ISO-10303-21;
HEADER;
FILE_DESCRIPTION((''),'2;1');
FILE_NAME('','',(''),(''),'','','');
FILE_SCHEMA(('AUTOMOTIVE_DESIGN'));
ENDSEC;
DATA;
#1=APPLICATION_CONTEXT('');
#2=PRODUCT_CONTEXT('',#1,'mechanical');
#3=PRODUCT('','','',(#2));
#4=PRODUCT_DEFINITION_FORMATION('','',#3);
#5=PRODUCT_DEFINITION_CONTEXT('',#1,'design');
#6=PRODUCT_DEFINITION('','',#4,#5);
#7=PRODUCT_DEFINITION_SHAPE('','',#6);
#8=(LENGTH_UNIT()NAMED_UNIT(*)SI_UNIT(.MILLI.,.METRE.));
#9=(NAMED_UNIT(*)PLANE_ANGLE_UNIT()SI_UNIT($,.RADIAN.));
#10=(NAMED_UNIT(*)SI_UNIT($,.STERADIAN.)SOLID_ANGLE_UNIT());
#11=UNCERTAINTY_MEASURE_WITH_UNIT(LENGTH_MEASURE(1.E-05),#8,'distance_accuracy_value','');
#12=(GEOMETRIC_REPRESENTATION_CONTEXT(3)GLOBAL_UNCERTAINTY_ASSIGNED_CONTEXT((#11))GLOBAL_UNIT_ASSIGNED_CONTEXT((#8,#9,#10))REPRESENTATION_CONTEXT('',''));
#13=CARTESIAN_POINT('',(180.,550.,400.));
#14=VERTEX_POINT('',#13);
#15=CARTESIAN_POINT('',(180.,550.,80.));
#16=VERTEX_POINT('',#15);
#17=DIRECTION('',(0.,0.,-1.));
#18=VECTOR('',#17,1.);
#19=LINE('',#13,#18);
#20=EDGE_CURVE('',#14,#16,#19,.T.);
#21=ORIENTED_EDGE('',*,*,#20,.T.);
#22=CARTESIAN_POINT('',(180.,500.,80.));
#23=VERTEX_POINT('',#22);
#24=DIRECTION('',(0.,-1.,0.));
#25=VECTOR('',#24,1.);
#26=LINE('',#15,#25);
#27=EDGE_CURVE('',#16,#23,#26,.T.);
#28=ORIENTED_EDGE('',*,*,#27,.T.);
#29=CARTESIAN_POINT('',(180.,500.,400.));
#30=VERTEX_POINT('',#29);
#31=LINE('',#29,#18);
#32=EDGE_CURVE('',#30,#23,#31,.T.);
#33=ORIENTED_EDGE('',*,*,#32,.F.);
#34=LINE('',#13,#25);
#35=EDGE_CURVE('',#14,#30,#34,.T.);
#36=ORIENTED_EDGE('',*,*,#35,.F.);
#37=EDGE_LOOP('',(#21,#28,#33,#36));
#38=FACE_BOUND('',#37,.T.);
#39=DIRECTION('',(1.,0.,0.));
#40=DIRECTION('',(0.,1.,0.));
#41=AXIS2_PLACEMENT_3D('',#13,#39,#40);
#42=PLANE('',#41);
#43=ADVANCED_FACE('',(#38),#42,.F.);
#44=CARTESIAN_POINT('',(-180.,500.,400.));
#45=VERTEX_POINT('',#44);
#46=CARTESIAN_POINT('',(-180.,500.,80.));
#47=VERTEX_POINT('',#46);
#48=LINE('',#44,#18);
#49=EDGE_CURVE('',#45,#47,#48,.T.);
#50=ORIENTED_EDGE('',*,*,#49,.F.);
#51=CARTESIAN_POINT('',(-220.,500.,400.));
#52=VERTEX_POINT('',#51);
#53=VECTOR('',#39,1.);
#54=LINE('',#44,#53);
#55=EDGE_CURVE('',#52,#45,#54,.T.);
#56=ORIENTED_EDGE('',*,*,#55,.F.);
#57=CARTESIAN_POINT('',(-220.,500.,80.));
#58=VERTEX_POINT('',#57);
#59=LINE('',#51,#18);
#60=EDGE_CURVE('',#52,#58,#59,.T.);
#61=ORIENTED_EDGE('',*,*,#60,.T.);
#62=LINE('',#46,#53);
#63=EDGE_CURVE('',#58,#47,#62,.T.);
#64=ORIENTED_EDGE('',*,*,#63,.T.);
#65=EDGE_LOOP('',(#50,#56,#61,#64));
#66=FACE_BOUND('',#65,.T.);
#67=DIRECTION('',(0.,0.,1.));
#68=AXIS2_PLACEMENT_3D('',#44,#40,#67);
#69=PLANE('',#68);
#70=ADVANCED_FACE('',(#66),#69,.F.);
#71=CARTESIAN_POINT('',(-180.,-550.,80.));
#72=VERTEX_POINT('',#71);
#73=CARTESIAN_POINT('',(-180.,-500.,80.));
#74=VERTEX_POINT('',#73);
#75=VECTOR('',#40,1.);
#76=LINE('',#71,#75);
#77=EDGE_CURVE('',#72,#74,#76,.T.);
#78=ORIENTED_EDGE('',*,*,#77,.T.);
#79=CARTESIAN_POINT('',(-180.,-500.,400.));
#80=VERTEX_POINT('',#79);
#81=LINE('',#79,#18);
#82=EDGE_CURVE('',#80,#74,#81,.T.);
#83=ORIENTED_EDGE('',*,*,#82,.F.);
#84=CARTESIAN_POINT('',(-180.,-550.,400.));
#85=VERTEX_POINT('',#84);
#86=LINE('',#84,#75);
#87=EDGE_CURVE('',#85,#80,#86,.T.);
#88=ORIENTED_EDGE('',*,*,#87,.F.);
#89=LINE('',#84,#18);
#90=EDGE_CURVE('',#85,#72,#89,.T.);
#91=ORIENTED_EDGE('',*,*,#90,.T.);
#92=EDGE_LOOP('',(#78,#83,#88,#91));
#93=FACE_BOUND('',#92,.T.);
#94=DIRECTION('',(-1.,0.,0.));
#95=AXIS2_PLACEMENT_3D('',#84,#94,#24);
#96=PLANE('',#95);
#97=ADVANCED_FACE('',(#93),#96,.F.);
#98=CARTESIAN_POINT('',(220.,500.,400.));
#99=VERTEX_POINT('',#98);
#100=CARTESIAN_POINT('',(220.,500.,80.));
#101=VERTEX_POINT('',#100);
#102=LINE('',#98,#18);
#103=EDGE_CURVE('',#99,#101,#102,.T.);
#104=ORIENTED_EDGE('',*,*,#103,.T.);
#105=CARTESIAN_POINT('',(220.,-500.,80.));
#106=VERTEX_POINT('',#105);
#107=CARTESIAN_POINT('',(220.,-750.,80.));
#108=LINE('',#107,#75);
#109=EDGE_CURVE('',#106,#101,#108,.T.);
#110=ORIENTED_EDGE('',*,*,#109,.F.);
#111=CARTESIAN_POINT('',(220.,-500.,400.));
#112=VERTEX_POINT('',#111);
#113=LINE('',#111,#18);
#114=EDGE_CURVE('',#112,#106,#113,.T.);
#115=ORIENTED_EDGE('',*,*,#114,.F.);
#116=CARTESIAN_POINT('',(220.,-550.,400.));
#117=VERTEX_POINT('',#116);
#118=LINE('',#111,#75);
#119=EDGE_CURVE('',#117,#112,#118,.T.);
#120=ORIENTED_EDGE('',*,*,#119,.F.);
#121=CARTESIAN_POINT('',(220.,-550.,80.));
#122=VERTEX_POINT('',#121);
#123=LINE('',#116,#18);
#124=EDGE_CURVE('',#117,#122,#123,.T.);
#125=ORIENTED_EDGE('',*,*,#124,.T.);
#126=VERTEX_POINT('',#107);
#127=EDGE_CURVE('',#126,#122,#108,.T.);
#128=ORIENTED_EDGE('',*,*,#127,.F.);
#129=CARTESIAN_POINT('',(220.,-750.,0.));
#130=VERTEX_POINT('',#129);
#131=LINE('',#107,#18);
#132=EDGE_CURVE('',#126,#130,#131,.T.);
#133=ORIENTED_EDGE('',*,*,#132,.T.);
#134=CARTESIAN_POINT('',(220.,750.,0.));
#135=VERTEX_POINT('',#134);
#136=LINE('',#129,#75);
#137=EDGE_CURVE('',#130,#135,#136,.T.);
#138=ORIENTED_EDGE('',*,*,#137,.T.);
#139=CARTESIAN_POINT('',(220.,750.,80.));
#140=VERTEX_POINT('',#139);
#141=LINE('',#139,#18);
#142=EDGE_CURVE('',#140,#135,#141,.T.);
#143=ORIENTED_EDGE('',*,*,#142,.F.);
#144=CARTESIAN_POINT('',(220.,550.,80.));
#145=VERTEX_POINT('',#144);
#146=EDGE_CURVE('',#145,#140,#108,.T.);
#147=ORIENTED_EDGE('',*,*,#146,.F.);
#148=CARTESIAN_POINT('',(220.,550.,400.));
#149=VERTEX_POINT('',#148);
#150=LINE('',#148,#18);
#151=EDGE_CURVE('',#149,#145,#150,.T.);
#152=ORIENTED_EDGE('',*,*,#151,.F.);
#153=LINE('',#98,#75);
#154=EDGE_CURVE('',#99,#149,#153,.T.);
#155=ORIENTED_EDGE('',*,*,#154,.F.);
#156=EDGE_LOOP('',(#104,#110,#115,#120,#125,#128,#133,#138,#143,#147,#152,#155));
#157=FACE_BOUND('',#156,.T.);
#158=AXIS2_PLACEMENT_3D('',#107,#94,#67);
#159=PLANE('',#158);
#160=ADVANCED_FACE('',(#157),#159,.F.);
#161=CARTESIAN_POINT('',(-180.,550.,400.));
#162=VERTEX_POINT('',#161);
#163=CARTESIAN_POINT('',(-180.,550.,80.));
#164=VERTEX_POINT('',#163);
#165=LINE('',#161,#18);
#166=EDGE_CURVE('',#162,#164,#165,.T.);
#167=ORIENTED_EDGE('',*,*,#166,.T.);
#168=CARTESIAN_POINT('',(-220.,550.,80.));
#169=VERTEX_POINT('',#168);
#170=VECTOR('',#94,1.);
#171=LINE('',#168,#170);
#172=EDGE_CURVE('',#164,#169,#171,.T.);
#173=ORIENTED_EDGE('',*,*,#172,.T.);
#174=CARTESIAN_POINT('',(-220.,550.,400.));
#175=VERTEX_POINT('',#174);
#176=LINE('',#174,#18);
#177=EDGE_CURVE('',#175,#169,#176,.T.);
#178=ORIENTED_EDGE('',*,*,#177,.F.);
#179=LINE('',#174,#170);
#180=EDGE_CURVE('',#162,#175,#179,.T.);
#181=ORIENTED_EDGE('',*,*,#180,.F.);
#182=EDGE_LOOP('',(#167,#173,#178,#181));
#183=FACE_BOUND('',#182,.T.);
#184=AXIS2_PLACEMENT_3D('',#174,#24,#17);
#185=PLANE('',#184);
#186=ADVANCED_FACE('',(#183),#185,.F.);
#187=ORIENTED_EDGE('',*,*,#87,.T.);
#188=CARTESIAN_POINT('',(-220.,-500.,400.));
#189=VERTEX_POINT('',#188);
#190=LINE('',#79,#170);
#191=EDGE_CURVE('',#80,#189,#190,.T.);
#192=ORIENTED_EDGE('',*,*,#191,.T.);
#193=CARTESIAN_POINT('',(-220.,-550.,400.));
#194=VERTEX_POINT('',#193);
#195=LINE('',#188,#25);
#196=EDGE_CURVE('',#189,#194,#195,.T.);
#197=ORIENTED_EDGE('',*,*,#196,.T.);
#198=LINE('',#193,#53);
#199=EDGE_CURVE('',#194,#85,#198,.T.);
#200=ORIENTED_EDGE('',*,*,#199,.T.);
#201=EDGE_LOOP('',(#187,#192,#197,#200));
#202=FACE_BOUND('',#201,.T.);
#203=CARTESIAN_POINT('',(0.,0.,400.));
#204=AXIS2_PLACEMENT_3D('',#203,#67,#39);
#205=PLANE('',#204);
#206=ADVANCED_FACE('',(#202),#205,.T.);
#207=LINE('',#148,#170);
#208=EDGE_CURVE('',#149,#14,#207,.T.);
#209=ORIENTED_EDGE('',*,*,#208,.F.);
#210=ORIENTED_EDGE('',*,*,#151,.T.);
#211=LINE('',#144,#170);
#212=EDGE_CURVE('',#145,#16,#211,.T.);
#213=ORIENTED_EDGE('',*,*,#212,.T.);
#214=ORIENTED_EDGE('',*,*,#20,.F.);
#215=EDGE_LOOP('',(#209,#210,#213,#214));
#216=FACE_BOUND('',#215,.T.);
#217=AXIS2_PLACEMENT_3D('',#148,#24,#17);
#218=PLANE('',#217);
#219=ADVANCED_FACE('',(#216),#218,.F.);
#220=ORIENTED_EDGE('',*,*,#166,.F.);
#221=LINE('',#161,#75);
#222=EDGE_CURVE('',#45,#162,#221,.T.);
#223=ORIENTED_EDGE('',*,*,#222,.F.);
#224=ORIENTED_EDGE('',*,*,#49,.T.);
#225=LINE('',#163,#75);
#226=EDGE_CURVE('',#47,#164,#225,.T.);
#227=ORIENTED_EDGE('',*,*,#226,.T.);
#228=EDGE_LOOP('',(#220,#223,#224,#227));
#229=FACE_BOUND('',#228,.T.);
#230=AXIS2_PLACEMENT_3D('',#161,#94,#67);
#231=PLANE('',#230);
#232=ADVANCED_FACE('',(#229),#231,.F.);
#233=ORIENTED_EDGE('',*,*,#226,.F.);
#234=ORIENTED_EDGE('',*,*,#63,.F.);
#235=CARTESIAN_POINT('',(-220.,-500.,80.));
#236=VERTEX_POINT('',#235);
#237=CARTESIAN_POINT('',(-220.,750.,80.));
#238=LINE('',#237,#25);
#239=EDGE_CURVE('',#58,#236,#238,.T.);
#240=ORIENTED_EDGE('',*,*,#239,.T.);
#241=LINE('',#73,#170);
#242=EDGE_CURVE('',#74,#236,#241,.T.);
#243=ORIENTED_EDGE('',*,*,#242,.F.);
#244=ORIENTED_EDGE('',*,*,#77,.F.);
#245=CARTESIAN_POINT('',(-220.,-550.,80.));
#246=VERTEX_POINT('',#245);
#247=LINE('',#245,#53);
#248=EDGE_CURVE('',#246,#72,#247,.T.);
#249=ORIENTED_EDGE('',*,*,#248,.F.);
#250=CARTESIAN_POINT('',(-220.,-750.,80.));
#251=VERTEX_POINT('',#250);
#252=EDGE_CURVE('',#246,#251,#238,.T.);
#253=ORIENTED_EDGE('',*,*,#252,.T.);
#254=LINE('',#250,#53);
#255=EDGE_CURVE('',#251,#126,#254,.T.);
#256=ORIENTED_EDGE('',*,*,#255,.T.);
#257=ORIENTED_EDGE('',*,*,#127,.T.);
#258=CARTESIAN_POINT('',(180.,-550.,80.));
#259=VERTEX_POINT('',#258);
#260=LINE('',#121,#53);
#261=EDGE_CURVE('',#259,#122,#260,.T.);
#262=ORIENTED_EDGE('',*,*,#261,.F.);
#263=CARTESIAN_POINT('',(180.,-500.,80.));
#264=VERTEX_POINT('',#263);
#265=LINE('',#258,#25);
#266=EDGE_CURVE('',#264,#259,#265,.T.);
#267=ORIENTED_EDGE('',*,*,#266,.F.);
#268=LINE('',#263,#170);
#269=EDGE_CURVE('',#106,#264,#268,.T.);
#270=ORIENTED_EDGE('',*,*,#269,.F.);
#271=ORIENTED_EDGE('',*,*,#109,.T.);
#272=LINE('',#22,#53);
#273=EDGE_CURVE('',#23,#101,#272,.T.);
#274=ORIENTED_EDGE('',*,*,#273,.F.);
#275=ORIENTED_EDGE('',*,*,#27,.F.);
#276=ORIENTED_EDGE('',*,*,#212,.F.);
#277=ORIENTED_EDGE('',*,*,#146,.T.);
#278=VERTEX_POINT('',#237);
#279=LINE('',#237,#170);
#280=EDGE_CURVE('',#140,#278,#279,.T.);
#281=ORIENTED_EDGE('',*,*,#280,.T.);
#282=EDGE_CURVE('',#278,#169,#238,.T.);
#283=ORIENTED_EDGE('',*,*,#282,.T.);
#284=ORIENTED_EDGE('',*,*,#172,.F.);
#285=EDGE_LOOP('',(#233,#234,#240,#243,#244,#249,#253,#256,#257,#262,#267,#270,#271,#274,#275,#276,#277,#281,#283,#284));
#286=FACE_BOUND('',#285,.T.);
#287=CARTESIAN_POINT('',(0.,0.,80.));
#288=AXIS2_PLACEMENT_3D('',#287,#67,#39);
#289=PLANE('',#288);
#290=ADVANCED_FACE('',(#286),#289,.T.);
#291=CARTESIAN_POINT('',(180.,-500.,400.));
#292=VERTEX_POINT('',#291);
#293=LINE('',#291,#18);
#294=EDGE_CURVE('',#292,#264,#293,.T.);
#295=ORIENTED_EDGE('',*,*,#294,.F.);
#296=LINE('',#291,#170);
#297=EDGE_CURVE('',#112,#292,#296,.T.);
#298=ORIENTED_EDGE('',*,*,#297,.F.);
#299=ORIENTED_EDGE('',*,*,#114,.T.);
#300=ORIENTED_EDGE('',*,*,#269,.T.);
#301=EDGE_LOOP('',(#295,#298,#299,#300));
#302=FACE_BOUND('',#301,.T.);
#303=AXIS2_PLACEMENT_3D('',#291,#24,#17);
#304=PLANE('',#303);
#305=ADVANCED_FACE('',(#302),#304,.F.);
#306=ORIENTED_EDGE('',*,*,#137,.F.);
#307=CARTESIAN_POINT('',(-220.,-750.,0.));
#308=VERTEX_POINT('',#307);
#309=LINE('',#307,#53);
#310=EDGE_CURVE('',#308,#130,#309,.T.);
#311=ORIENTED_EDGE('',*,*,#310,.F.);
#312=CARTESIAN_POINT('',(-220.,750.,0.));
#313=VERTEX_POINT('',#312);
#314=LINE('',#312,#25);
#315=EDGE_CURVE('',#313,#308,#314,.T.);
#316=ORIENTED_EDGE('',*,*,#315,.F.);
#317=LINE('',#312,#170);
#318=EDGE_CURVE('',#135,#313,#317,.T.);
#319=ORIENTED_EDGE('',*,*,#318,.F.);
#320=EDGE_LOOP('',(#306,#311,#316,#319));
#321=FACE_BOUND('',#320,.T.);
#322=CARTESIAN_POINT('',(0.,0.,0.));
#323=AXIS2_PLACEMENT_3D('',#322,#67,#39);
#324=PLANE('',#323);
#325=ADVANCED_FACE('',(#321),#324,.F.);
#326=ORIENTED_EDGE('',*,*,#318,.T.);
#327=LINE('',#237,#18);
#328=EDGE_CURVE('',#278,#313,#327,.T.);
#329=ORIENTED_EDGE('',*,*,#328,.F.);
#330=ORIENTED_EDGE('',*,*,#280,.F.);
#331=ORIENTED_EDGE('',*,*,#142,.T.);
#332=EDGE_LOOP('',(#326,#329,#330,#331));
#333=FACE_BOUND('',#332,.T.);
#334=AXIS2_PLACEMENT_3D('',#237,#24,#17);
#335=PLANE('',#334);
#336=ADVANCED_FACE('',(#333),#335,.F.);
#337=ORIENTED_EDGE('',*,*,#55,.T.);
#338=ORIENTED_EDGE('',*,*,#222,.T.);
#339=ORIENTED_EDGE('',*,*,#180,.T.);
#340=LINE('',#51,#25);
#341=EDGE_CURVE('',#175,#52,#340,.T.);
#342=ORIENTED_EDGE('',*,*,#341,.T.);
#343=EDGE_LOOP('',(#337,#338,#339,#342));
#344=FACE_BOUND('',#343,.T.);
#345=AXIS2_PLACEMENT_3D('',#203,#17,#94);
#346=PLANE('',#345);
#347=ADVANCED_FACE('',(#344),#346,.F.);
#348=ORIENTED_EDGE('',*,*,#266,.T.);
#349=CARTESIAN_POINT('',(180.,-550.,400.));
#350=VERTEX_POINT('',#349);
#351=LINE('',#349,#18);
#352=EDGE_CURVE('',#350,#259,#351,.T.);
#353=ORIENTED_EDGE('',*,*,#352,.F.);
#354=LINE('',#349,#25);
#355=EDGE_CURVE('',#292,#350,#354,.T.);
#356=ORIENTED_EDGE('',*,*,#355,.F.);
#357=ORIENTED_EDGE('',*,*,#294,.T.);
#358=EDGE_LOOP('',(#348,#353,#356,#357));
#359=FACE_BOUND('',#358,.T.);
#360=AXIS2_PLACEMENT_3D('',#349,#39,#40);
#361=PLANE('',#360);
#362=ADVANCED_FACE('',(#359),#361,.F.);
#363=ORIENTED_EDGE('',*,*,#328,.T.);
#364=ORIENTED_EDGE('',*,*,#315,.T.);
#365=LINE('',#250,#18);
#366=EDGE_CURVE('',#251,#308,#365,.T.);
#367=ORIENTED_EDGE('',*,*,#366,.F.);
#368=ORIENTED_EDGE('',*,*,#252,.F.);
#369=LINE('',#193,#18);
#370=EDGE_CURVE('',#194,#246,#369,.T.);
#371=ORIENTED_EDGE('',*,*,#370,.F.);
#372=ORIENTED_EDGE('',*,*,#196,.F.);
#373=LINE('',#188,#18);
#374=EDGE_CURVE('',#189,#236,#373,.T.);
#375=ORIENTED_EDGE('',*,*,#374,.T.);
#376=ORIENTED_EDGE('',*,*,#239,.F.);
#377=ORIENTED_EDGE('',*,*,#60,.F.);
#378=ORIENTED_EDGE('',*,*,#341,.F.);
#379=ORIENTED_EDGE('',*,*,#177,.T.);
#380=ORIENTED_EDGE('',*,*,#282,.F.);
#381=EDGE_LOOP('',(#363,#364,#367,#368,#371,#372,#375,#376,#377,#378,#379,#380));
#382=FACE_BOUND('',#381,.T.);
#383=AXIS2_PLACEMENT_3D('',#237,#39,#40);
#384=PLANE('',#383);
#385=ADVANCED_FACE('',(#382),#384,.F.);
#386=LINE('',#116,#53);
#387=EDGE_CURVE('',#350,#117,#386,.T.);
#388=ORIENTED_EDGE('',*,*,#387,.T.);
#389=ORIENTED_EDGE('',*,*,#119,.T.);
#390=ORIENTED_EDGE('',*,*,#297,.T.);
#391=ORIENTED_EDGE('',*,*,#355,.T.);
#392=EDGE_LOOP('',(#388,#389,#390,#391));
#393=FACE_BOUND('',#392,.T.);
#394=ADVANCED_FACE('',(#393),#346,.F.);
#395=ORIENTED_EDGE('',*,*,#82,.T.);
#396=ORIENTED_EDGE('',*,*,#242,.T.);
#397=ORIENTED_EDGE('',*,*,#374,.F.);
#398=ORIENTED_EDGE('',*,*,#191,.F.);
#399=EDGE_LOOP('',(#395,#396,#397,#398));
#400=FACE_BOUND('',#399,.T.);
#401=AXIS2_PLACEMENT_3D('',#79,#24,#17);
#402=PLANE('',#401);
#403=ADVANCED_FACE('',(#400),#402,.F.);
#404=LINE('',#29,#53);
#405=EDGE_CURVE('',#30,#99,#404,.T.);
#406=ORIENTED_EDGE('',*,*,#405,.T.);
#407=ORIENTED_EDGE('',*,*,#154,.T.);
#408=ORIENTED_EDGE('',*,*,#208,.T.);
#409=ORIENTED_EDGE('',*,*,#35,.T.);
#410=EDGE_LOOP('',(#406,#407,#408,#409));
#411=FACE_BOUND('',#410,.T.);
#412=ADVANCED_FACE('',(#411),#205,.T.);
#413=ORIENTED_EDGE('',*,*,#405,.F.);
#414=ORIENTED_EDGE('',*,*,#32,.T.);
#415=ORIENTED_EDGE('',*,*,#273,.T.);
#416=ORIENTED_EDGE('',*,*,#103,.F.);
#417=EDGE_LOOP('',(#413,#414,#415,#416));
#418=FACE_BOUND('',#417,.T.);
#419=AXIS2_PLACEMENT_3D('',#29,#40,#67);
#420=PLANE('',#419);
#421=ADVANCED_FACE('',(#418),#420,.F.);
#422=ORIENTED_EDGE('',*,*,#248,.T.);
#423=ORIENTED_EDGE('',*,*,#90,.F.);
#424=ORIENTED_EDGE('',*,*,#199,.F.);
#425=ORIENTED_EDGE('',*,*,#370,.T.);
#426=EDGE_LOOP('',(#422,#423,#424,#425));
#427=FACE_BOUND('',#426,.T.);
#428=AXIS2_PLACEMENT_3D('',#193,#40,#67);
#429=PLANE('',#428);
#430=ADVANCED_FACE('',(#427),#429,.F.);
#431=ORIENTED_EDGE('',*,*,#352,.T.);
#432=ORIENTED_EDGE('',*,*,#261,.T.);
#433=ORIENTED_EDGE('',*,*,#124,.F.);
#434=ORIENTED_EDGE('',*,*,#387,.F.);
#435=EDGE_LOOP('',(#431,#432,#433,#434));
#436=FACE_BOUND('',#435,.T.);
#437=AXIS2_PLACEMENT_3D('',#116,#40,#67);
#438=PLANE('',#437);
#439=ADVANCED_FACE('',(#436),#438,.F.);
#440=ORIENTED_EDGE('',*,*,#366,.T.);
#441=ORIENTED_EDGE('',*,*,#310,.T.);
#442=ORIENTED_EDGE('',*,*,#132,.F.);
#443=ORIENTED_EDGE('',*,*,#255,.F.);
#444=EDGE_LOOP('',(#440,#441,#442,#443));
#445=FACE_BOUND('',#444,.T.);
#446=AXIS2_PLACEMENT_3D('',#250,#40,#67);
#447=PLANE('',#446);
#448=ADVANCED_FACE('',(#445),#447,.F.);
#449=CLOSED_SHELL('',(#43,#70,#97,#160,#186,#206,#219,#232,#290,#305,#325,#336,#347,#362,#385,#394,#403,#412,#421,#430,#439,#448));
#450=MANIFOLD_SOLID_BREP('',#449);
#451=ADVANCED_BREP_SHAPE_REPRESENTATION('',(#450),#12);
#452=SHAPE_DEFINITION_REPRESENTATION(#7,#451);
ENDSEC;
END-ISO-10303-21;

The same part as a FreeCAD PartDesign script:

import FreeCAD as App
import Part
import Sketcher

V = App.Vector

doc = App.newDocument("Part")
body = doc.addObject("PartDesign::Body", "Body")

# Sketch on XY plane
sketch1 = doc.addObject("Sketcher::SketchObject", "Sketch")
body.addObject(sketch1)
sketch1.AttachmentSupport = (doc.XY_Plane, [""])
sketch1.MapMode = "FlatFace"
sketch1.addGeometry(Part.LineSegment(V(-220, 750, 0), V(-220, -750, 0)), False)
sketch1.addGeometry(Part.LineSegment(V(-220, -750, 0), V(220, -750, 0)), False)
sketch1.addGeometry(Part.LineSegment(V(220, -750, 0), V(220, 750, 0)), False)
sketch1.addGeometry(Part.LineSegment(V(220, 750, 0), V(-220, 750, 0)), False)
sketch1.addConstraint(Sketcher.Constraint("Coincident", 0, 2, 1, 1))
sketch1.addConstraint(Sketcher.Constraint("Coincident", 1, 2, 2, 1))
sketch1.addConstraint(Sketcher.Constraint("Coincident", 2, 2, 3, 1))
sketch1.addConstraint(Sketcher.Constraint("Coincident", 3, 2, 0, 1))
sketch1.addConstraint(Sketcher.Constraint("Vertical", 0))
sketch1.addConstraint(Sketcher.Constraint("Horizontal", 1))
sketch1.addConstraint(Sketcher.Constraint("Vertical", 2))
sketch1.addConstraint(Sketcher.Constraint("Horizontal", 3))
sketch1.addConstraint(Sketcher.Constraint("Symmetric", 0, 2, 2, 2, -1, 1))
sketch1.addConstraint(Sketcher.Constraint("DistanceX", 1, 1, 1, 2, 440.0))
sketch1.addConstraint(Sketcher.Constraint("DistanceY", 0, 2, 0, 1, 1500.0))
pad1 = doc.addObject("PartDesign::Pad", "Pad")
body.addObject(pad1)
pad1.Profile = sketch1
pad1.Length = 80

# Sketch on XY plane
sketch2 = doc.addObject("Sketcher::SketchObject", "Sketch001")
body.addObject(sketch2)
sketch2.AttachmentSupport = (doc.XY_Plane, [""])
sketch2.MapMode = "FlatFace"
sketch2.AttachmentOffset = App.Placement(V(0, 0, 80), App.Rotation())
sketch2.addGeometry(Part.LineSegment(V(-220, 550, 0), V(-220, 500, 0)), False)
sketch2.addGeometry(Part.LineSegment(V(-220, 500, 0), V(-180, 500, 0)), False)
sketch2.addGeometry(Part.LineSegment(V(-180, 500, 0), V(-180, 550, 0)), False)
sketch2.addGeometry(Part.LineSegment(V(-180, 550, 0), V(-220, 550, 0)), False)
sketch2.addGeometry(Part.LineSegment(V(-220, -500, 0), V(-220, -550, 0)), False)
sketch2.addGeometry(Part.LineSegment(V(-220, -550, 0), V(-180, -550, 0)), False)
sketch2.addGeometry(Part.LineSegment(V(-180, -550, 0), V(-180, -500, 0)), False)
sketch2.addGeometry(Part.LineSegment(V(-180, -500, 0), V(-220, -500, 0)), False)
sketch2.addGeometry(Part.LineSegment(V(180, -500, 0), V(180, -550, 0)), False)
sketch2.addGeometry(Part.LineSegment(V(180, -550, 0), V(220, -550, 0)), False)
sketch2.addGeometry(Part.LineSegment(V(220, -550, 0), V(220, -500, 0)), False)
sketch2.addGeometry(Part.LineSegment(V(220, -500, 0), V(180, -500, 0)), False)
sketch2.addGeometry(Part.LineSegment(V(180, 550, 0), V(180, 500, 0)), False)
sketch2.addGeometry(Part.LineSegment(V(180, 500, 0), V(220, 500, 0)), False)
sketch2.addGeometry(Part.LineSegment(V(220, 500, 0), V(220, 550, 0)), False)
sketch2.addGeometry(Part.LineSegment(V(220, 550, 0), V(180, 550, 0)), False)
sketch2.addConstraint(Sketcher.Constraint("Coincident", 0, 2, 1, 1))
sketch2.addConstraint(Sketcher.Constraint("Coincident", 1, 2, 2, 1))
sketch2.addConstraint(Sketcher.Constraint("Coincident", 2, 2, 3, 1))
sketch2.addConstraint(Sketcher.Constraint("Coincident", 3, 2, 0, 1))
sketch2.addConstraint(Sketcher.Constraint("Coincident", 4, 2, 5, 1))
sketch2.addConstraint(Sketcher.Constraint("Coincident", 5, 2, 6, 1))
sketch2.addConstraint(Sketcher.Constraint("Coincident", 6, 2, 7, 1))
sketch2.addConstraint(Sketcher.Constraint("Coincident", 7, 2, 4, 1))
sketch2.addConstraint(Sketcher.Constraint("Coincident", 8, 2, 9, 1))
sketch2.addConstraint(Sketcher.Constraint("Coincident", 9, 2, 10, 1))
sketch2.addConstraint(Sketcher.Constraint("Coincident", 10, 2, 11, 1))
sketch2.addConstraint(Sketcher.Constraint("Coincident", 11, 2, 8, 1))
sketch2.addConstraint(Sketcher.Constraint("Coincident", 12, 2, 13, 1))
sketch2.addConstraint(Sketcher.Constraint("Coincident", 13, 2, 14, 1))
sketch2.addConstraint(Sketcher.Constraint("Coincident", 14, 2, 15, 1))
sketch2.addConstraint(Sketcher.Constraint("Coincident", 15, 2, 12, 1))
sketch2.addConstraint(Sketcher.Constraint("Vertical", 0))
sketch2.addConstraint(Sketcher.Constraint("Horizontal", 1))
sketch2.addConstraint(Sketcher.Constraint("Vertical", 2))
sketch2.addConstraint(Sketcher.Constraint("Horizontal", 3))
sketch2.addConstraint(Sketcher.Constraint("Vertical", 4))
sketch2.addConstraint(Sketcher.Constraint("Horizontal", 5))
sketch2.addConstraint(Sketcher.Constraint("Vertical", 6))
sketch2.addConstraint(Sketcher.Constraint("Horizontal", 7))
sketch2.addConstraint(Sketcher.Constraint("Vertical", 8))
sketch2.addConstraint(Sketcher.Constraint("Horizontal", 9))
sketch2.addConstraint(Sketcher.Constraint("Vertical", 10))
sketch2.addConstraint(Sketcher.Constraint("Horizontal", 11))
sketch2.addConstraint(Sketcher.Constraint("Vertical", 12))
sketch2.addConstraint(Sketcher.Constraint("Horizontal", 13))
sketch2.addConstraint(Sketcher.Constraint("Vertical", 14))
sketch2.addConstraint(Sketcher.Constraint("Horizontal", 15))
sketch2.addConstraint(Sketcher.Constraint("Symmetric", 2, 2, 8, 2, -1, 1))
sketch2.addConstraint(Sketcher.Constraint("Symmetric", 0, 2, 10, 2, -1, 1))
sketch2.addConstraint(Sketcher.Constraint("Symmetric", 6, 2, 12, 2, -1, 1))
sketch2.addConstraint(Sketcher.Constraint("Symmetric", 4, 2, 14, 2, -1, 1))
sketch2.addConstraint(Sketcher.Constraint("Symmetric", 5, 2, 8, 2, -2))
sketch2.addConstraint(Sketcher.Constraint("Symmetric", 7, 2, 10, 2, -2))
sketch2.addConstraint(Sketcher.Constraint("DistanceX", 1, 1, 1, 2, 40.0))
sketch2.addConstraint(Sketcher.Constraint("DistanceY", 0, 2, 0, 1, 50.0))
sketch2.addConstraint(Sketcher.Constraint("DistanceX", 0, 2, -1, 1, 220.0))
sketch2.addConstraint(Sketcher.Constraint("DistanceY", -1, 1, 0, 2, 500.0))
pad2 = doc.addObject("PartDesign::Pad", "Pad001")
body.addObject(pad2)
pad2.Profile = sketch2
pad2.Length = 320

doc.recompute()
